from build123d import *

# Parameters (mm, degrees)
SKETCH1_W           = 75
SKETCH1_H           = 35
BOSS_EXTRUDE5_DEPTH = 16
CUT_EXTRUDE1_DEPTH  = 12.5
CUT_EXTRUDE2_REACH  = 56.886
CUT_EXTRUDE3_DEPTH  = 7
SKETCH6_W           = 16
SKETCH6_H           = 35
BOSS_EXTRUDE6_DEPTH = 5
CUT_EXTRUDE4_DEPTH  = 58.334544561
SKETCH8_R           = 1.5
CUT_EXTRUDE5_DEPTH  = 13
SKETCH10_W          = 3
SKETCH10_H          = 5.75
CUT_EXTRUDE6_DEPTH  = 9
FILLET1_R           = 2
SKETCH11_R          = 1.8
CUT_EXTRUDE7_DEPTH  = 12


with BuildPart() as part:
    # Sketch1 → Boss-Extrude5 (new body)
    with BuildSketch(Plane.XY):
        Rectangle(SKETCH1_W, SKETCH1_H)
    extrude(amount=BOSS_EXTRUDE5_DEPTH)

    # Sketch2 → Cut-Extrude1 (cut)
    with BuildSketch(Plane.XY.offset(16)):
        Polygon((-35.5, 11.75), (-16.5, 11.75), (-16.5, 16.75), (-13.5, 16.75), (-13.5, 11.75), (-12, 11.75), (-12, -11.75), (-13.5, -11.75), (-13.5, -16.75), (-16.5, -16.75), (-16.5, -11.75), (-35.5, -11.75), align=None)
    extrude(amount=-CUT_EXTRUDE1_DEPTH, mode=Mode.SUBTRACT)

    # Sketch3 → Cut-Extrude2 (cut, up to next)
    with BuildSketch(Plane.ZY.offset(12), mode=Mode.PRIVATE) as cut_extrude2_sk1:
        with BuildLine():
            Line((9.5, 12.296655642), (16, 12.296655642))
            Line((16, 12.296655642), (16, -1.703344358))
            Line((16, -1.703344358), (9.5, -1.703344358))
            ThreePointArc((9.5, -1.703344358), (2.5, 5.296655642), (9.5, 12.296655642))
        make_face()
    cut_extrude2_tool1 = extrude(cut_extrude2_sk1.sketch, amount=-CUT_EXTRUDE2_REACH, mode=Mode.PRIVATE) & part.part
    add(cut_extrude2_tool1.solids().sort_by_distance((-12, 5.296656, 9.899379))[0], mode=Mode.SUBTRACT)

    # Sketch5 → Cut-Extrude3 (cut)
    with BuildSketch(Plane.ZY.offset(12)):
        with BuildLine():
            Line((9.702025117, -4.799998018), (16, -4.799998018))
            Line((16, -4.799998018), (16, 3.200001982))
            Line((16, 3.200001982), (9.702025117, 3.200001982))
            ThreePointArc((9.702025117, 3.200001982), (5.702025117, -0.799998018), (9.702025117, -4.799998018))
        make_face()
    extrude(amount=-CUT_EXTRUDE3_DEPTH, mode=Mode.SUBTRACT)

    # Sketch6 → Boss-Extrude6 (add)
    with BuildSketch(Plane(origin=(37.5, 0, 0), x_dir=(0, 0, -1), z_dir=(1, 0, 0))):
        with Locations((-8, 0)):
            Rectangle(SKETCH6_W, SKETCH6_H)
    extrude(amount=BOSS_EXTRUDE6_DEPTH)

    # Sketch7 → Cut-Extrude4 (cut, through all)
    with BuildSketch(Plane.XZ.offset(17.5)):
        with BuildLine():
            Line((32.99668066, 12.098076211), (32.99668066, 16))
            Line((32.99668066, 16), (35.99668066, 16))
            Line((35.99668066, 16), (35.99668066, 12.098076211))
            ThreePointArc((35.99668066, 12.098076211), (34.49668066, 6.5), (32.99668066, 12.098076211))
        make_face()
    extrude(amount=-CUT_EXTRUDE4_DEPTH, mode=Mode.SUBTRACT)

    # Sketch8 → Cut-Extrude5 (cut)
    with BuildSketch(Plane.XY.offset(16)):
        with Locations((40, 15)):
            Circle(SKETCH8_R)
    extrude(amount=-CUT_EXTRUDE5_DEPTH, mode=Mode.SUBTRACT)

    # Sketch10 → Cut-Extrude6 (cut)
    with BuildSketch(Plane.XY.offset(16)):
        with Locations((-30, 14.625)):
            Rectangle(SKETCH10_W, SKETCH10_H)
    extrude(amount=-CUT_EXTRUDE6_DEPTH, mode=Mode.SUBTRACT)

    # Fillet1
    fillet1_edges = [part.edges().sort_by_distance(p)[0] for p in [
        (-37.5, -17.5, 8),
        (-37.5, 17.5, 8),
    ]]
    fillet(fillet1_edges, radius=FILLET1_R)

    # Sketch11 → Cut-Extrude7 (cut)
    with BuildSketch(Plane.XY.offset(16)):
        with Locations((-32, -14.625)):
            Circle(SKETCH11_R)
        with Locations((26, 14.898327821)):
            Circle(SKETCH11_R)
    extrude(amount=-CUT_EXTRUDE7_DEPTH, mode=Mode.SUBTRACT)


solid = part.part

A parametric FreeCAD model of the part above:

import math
import FreeCAD as App
import Part
import Sketcher

V = App.Vector
Q = App.Units.Quantity


def edges_at(feature, points):
    """Names of the edges that pass closest to the given points."""
    edges = feature.Shape.Edges
    near = lambda p: min(range(len(edges)), key=lambda i: edges[i].distToShape(Part.Vertex(*p))[0])
    return sorted({f"Edge{near(p) + 1}" for p in points})


def add_polygon(sketch, points):
    """Adds a closed chain of lines whose ends are joined by coincident constraints."""
    first, n = sketch.GeometryCount, len(points)
    for a, b in zip(points, points[1:] + points[:1]):
        sketch.addGeometry(Part.LineSegment(App.Vector(*a, 0), App.Vector(*b, 0)), False)
    for i in range(n):
        sketch.addConstraint(Sketcher.Constraint("Coincident", first + i, 2, first + (i + 1) % n, 1))

doc = App.newDocument("Part")
params = doc.addObject("Spreadsheet::Sheet", "Params")
for row, (alias, value) in enumerate([
    ("sketch1_width", "75 mm"),
    ("sketch1_height", "35 mm"),
    ("pad1_length", "16 mm"),
    ("sketch2_width", "19 mm"),
    ("sketch2_width2", "3 mm"),
    ("sketch2_height", "5 mm"),
    ("sketch2_width3", "1.5 mm"),
    ("sketch2_height2", "23.5 mm"),
    ("pocket1_length", "12.5 mm"),
    ("sketch3_radius", "7 mm"),
    ("sketch3_height", "6.5 mm"),
    ("sketch4_radius", "4 mm"),
    ("pocket3_length", "7 mm"),
    ("sketch5_width", "35 mm"),
    ("sketch5_height", "16 mm"),
    ("pad2_length", "5 mm"),
    ("sketch6_radius", "3 mm"),
    ("sketch6_width", "3 mm"),
    ("sketch7_diameter", "3 mm"),
    ("pocket5_length", "13 mm"),
    ("sketch8_width", "3 mm"),
    ("sketch8_height", "5.75 mm"),
    ("pocket6_length", "9 mm"),
    ("fillet_radius", "2 mm"),
    ("sketch9_diameter", "3.6 mm"),
    ("pocket7_length", "12 mm"),
], start=1):
    params.set(f"A{row}", alias)
    params.set(f"B{row}", "=" + value)
    params.setAlias(f"B{row}", alias)

body = doc.addObject("PartDesign::Body", "Body")

# Sketch on XY plane
sketch1 = body.newObject("Sketcher::SketchObject", "Sketch")
sketch1.AttachmentSupport = (doc.getObject("XY_Plane"), [""])
sketch1.MapMode = "FlatFace"
add_polygon(sketch1, [(-38, 18), (-38, -18), (38, -18), (38, 18)])  # lines 0-3
sketch1.addConstraint([
    Sketcher.Constraint("Vertical", 0),
    Sketcher.Constraint("Horizontal", 1),
    Sketcher.Constraint("Vertical", 2),
    Sketcher.Constraint("Horizontal", 3),
    Sketcher.Constraint("Symmetric", 0, 2, 2, 2, -1, 1),
    Sketcher.Constraint("DistanceX", 1, 1, 1, 2, Q("75 mm")),
    Sketcher.Constraint("DistanceY", 0, 2, 0, 1, Q("35 mm")),
])
sketch1.setExpression("Constraints[9]", "Params.sketch1_width")
sketch1.setExpression("Constraints[10]", "Params.sketch1_height")
pad1 = body.newObject("PartDesign::Pad", "Pad")
pad1.Profile = sketch1
pad1.setExpression("Length", "Params.pad1_length")

# Sketch on XY plane
sketch2 = body.newObject("Sketcher::SketchObject", "Sketch001")
sketch2.AttachmentSupport = (doc.getObject("XY_Plane"), [""])
sketch2.MapMode = "FlatFace"
sketch2.AttachmentOffset = App.Placement(V(0, 0, 16), App.Rotation())
add_polygon(sketch2, [(-16.5, 11.8), (-35.5, 11.8), (-35.5, -11.8), (-16.5, -11.8), (-16.5, -16.8), (-13.5, -16.8), (-13.5, -11.8), (-12, -11.8), (-12, 11.8), (-13.5, 11.8), (-13.5, 16.8), (-16.5, 16.8)])  # lines 0-11
sketch2.addConstraint([
    Sketcher.Constraint("Horizontal", 0),
    Sketcher.Constraint("Vertical", 1),
    Sketcher.Constraint("Horizontal", 2),
    Sketcher.Constraint("Vertical", 3),
    Sketcher.Constraint("Horizontal", 4),
    Sketcher.Constraint("Vertical", 5),
    Sketcher.Constraint("Horizontal", 6),
    Sketcher.Constraint("Vertical", 7),
    Sketcher.Constraint("Horizontal", 8),
    Sketcher.Constraint("Vertical", 9),
    Sketcher.Constraint("Horizontal", 10),
    Sketcher.Constraint("Vertical", 11),
    Sketcher.Constraint("Symmetric", 5, 2, 8, 2, -1),
    Sketcher.Constraint("Symmetric", 3, 2, 10, 2, -1),
    Sketcher.Constraint("Horizontal", 2, 2, 5, 2),
    Sketcher.Constraint("Horizontal", 0, 2, 7, 2),
    Sketcher.Constraint("DistanceX", 0, 2, 0, 1, Q("19 mm")),
    Sketcher.Constraint("DistanceX", 4, 1, 4, 2, Q("3 mm")),
    Sketcher.Constraint("DistanceY", 3, 2, 3, 1, Q("5 mm")),
    Sketcher.Constraint("DistanceX", 6, 1, 6, 2, Q("1.5 mm")),
    Sketcher.Constraint("DistanceY", 1, 2, 1, 1, Q("23.5 mm")),
    Sketcher.Constraint("DistanceX", 6, 2, -1, 1, Q("12 mm")),
])
sketch2.setExpression("Constraints[28]", "Params.sketch2_width")
sketch2.setExpression("Constraints[29]", "Params.sketch2_width2")
sketch2.setExpression("Constraints[30]", "Params.sketch2_height")
sketch2.setExpression("Constraints[31]", "Params.sketch2_width3")
sketch2.setExpression("Constraints[32]", "Params.sketch2_height2")
pocket1 = body.newObject("PartDesign::Pocket", "Pocket")
pocket1.Profile = sketch2
pocket1.setExpression("Length", "Params.pocket1_length")

# Sketch on YZ plane
sketch3 = body.newObject("Sketcher::SketchObject", "Sketch002")
sketch3.AttachmentSupport = (doc.getObject("YZ_Plane"), [""])
sketch3.MapMode = "FlatFace"
sketch3.AttachmentOffset = App.Placement(V(0, 0, -12), App.Rotation())
sketch3.addGeometry([
    Part.LineSegment(V(12, 16, 0), V(12, 10, 0)),
    Part.ArcOfCircle(Part.Circle(V(5, 10, 0), V(0, 0, 1), 7), math.radians(180), math.radians(360)),
    Part.LineSegment(V(-2, 10, 0), V(-2, 16, 0)),
    Part.LineSegment(V(-2, 16, 0), V(12, 16, 0)),
], False)
sketch3.addConstraint([
    Sketcher.Constraint("Tangent", 0, 2, 1, 2),
    Sketcher.Constraint("Tangent", 1, 1, 2, 1),
    Sketcher.Constraint("Coincident", 2, 2, 3, 1),
    Sketcher.Constraint("Coincident", 3, 2, 0, 1),
    Sketcher.Constraint("Vertical", 0),
    Sketcher.Constraint("Vertical", 2),
    Sketcher.Constraint("Horizontal", 3),
    Sketcher.Constraint("Radius", 1, Q("7 mm")),
    Sketcher.Constraint("DistanceY", 0, 2, 0, 1, Q("6.5 mm")),
    Sketcher.Constraint("DistanceY", -1, 1, 2, 2, Q("16 mm")),
    Sketcher.Constraint("DistanceX", -1, 1, 1, 3, Q("5.296656 mm")),
])
sketch3.setExpression("Constraints[7]", "Params.sketch3_radius")
sketch3.setExpression("Constraints[8]", "Params.sketch3_height")
pocket2 = body.newObject("PartDesign::Pocket", "Pocket001")
pocket2.Profile = sketch3
pocket2.Type = "UpToFirst"
pocket2.Reversed = True

# Sketch on YZ plane
sketch4 = body.newObject("Sketcher::SketchObject", "Sketch003")
sketch4.AttachmentSupport = (doc.getObject("YZ_Plane"), [""])
sketch4.MapMode = "FlatFace"
sketch4.AttachmentOffset = App.Placement(V(0, 0, -12), App.Rotation())
sketch4.addGeometry([
    Part.LineSegment(V(-4.8, 9.7, 0), V(-4.8, 16, 0)),
    Part.LineSegment(V(-4.8, 16, 0), V(3.2, 16, 0)),
    Part.LineSegment(V(3.2, 16, 0), V(3.2, 9.7, 0)),
    Part.ArcOfCircle(Part.Circle(V(-0.8, 9.7, 0), V(0, 0, 1), 4), math.radians(180), math.radians(360)),
], False)
sketch4.addConstraint([
    Sketcher.Constraint("Coincident", 0, 2, 1, 1),
    Sketcher.Constraint("Coincident", 1, 2, 2, 1),
    Sketcher.Constraint("Tangent", 2, 2, 3, 2),
    Sketcher.Constraint("Tangent", 3, 1, 0, 1),
    Sketcher.Constraint("Vertical", 0),
    Sketcher.Constraint("Horizontal", 1),
    Sketcher.Constraint("Vertical", 2),
    Sketcher.Constraint("Radius", 3, Q("4 mm")),
    Sketcher.Constraint("DistanceY", -1, 1, 0, 2, Q("16 mm")),
    Sketcher.Constraint("DistanceX", 3, 3, -1, 1, Q("0.799998 mm")),
    Sketcher.Constraint("DistanceY", 0, 1, 0, 2, Q("6.297975 mm")),
])
sketch4.setExpression("Constraints[7]", "Params.sketch4_radius")
pocket3 = body.newObject("PartDesign::Pocket", "Pocket002")
pocket3.Profile = sketch4
pocket3.setExpression("Length", "Params.pocket3_length")
pocket3.Reversed = True

# Sketch on YZ plane
sketch5 = body.newObject("Sketcher::SketchObject", "Sketch004")
sketch5.AttachmentSupport = (doc.getObject("YZ_Plane"), [""])
sketch5.MapMode = "FlatFace"
sketch5.AttachmentOffset = App.Placement(V(0, 0, 37.5), App.Rotation())
add_polygon(sketch5, [(18, 16), (-18, 16), (-18, 0), (18, 0)])  # lines 0-3
sketch5.addConstraint([
    Sketcher.Constraint("Horizontal", 0),
    Sketcher.Constraint("Vertical", 1),
    Sketcher.Constraint("Horizontal", 2),
    Sketcher.Constraint("Vertical", 3),
    Sketcher.Constraint("Symmetric", 1, 2, 2, 2, -1, 1),
    Sketcher.Constraint("DistanceX", 0, 2, 0, 1, Q("35 mm")),
    Sketcher.Constraint("DistanceY", 1, 2, 1, 1, Q("16 mm")),
])
sketch5.setExpression("Constraints[9]", "Params.sketch5_width")
sketch5.setExpression("Constraints[10]", "Params.sketch5_height")
pad2 = body.newObject("PartDesign::Pad", "Pad001")
pad2.Profile = sketch5
pad2.setExpression("Length", "Params.pad2_length")

# Sketch on XZ plane
sketch6 = body.newObject("Sketcher::SketchObject", "Sketch005")
sketch6.AttachmentSupport = (doc.getObject("XZ_Plane"), [""])
sketch6.MapMode = "FlatFace"
sketch6.AttachmentOffset = App.Placement(V(0, 0, 17.5), App.Rotation())
sketch6.addGeometry([
    Part.LineSegment(V(33, 16, 0), V(33, 12.1, 0)),
    Part.ArcOfCircle(Part.Circle(V(34.5, 9.5, 0), V(0, 0, 1), 3), math.radians(120), math.radians(420)),
    Part.LineSegment(V(36, 12.1, 0), V(36, 16, 0)),
    Part.LineSegment(V(36, 16, 0), V(33, 16, 0)),
], False)
sketch6.addConstraint([
    Sketcher.Constraint("Coincident", 0, 2, 1, 1),
    Sketcher.Constraint("Coincident", 1, 2, 2, 1),
    Sketcher.Constraint("Coincident", 2, 2, 3, 1),
    Sketcher.Constraint("Coincident", 3, 2, 0, 1),
    Sketcher.Constraint("Vertical", 0),
    Sketcher.Constraint("Vertical", 2),
    Sketcher.Constraint("Horizontal", 3),
    Sketcher.Constraint("Horizontal", 0, 2, 1, 2),
    Sketcher.Constraint("Radius", 1, Q("3 mm")),
    Sketcher.Constraint("DistanceX", 3, 2, 3, 1, Q("3 mm")),
    Sketcher.Constraint("DistanceY", -1, 1, 2, 2, Q("16 mm")),
    Sketcher.Constraint("DistanceY", -1, 1, 1, 3, Q("9.5 mm")),
    Sketcher.Constraint("DistanceX", -1, 1, 1, 3, Q("34.496681 mm")),
])
sketch6.setExpression("Constraints[8]", "Params.sketch6_radius")
sketch6.setExpression("Constraints[9]", "Params.sketch6_width")
pocket4 = body.newObject("PartDesign::Pocket", "Pocket003")
pocket4.Profile = sketch6
pocket4.Type = "ThroughAll"

# Sketch on XY plane
sketch7 = body.newObject("Sketcher::SketchObject", "Sketch006")
sketch7.AttachmentSupport = (doc.getObject("XY_Plane"), [""])
sketch7.MapMode = "FlatFace"
sketch7.AttachmentOffset = App.Placement(V(0, 0, 16), App.Rotation())
sketch7.addGeometry(Part.Circle(V(40, 15, 0), V(0, 0, 1), 1.5), False)
sketch7.addConstraint([
    Sketcher.Constraint("Diameter", 0, Q("3 mm")),
    Sketcher.Constraint("DistanceX", -1, 1, 0, 3, Q("40 mm")),
    Sketcher.Constraint("DistanceY", -1, 1, 0, 3, Q("15 mm")),
])
sketch7.setExpression("Constraints[0]", "Params.sketch7_diameter")
pocket5 = body.newObject("PartDesign::Pocket", "Pocket004")
pocket5.Profile = sketch7
pocket5.setExpression("Length", "Params.pocket5_length")

# Sketch on XY plane
sketch8 = body.newObject("Sketcher::SketchObject", "Sketch007")
sketch8.AttachmentSupport = (doc.getObject("XY_Plane"), [""])
sketch8.MapMode = "FlatFace"
sketch8.AttachmentOffset = App.Placement(V(0, 0, 16), App.Rotation())
add_polygon(sketch8, [(-31.5, 17.5), (-31.5, 11.8), (-28.5, 11.8), (-28.5, 17.5)])  # lines 0-3
sketch8.addConstraint([
    Sketcher.Constraint("Vertical", 0),
    Sketcher.Constraint("Horizontal", 1),
    Sketcher.Constraint("Vertical", 2),
    Sketcher.Constraint("Horizontal", 3),
    Sketcher.Constraint("DistanceX", 1, 1, 1, 2, Q("3 mm")),
    Sketcher.Constraint("DistanceY", 0, 2, 0, 1, Q("5.75 mm")),
    Sketcher.Constraint("DistanceX", 0, 2, -1, 1, Q("31.5 mm")),
    Sketcher.Constraint("DistanceY", -1, 1, 2, 2, Q("17.5 mm")),
])
sketch8.setExpression("Constraints[8]", "Params.sketch8_width")
sketch8.setExpression("Constraints[9]", "Params.sketch8_height")
pocket6 = body.newObject("PartDesign::Pocket", "Pocket005")
pocket6.Profile = sketch8
pocket6.setExpression("Length", "Params.pocket6_length")
doc.recompute()

fillet = body.newObject("PartDesign::Fillet", "Fillet")
fillet.Base = (pocket6, edges_at(pocket6, [(-37.5, -17.5, 8), (-37.5, 17.5, 8)]))
fillet.setExpression("Radius", "Params.fillet_radius")

# Sketch on XY plane
sketch9 = body.newObject("Sketcher::SketchObject", "Sketch008")
sketch9.AttachmentSupport = (doc.getObject("XY_Plane"), [""])
sketch9.MapMode = "FlatFace"
sketch9.AttachmentOffset = App.Placement(V(0, 0, 16), App.Rotation())
sketch9.addGeometry([
    Part.Circle(V(-32, -14.6, 0), V(0, 0, 1), 1.8),
    Part.Circle(V(26, 14.9, 0), V(0, 0, 1), 1.8),
], False)
sketch9.addConstraint([
    Sketcher.Constraint("Equal", 0, 1),
    Sketcher.Constraint("Diameter", 0, Q("3.6 mm")),
    Sketcher.Constraint("DistanceX", 0, 3, -1, 1, Q("32 mm")),
    Sketcher.Constraint("DistanceX", -1, 1, 1, 3, Q("26 mm")),
    Sketcher.Constraint("DistanceY", 0, 3, -1, 1, Q("14.625 mm")),
    Sketcher.Constraint("DistanceY", -1, 1, 1, 3, Q("14.898328 mm")),
])
sketch9.setExpression("Constraints[1]", "Params.sketch9_diameter")
pocket7 = body.newObject("PartDesign::Pocket", "Pocket006")
pocket7.Profile = sketch9
pocket7.setExpression("Length", "Params.pocket7_length")

doc.recompute()
